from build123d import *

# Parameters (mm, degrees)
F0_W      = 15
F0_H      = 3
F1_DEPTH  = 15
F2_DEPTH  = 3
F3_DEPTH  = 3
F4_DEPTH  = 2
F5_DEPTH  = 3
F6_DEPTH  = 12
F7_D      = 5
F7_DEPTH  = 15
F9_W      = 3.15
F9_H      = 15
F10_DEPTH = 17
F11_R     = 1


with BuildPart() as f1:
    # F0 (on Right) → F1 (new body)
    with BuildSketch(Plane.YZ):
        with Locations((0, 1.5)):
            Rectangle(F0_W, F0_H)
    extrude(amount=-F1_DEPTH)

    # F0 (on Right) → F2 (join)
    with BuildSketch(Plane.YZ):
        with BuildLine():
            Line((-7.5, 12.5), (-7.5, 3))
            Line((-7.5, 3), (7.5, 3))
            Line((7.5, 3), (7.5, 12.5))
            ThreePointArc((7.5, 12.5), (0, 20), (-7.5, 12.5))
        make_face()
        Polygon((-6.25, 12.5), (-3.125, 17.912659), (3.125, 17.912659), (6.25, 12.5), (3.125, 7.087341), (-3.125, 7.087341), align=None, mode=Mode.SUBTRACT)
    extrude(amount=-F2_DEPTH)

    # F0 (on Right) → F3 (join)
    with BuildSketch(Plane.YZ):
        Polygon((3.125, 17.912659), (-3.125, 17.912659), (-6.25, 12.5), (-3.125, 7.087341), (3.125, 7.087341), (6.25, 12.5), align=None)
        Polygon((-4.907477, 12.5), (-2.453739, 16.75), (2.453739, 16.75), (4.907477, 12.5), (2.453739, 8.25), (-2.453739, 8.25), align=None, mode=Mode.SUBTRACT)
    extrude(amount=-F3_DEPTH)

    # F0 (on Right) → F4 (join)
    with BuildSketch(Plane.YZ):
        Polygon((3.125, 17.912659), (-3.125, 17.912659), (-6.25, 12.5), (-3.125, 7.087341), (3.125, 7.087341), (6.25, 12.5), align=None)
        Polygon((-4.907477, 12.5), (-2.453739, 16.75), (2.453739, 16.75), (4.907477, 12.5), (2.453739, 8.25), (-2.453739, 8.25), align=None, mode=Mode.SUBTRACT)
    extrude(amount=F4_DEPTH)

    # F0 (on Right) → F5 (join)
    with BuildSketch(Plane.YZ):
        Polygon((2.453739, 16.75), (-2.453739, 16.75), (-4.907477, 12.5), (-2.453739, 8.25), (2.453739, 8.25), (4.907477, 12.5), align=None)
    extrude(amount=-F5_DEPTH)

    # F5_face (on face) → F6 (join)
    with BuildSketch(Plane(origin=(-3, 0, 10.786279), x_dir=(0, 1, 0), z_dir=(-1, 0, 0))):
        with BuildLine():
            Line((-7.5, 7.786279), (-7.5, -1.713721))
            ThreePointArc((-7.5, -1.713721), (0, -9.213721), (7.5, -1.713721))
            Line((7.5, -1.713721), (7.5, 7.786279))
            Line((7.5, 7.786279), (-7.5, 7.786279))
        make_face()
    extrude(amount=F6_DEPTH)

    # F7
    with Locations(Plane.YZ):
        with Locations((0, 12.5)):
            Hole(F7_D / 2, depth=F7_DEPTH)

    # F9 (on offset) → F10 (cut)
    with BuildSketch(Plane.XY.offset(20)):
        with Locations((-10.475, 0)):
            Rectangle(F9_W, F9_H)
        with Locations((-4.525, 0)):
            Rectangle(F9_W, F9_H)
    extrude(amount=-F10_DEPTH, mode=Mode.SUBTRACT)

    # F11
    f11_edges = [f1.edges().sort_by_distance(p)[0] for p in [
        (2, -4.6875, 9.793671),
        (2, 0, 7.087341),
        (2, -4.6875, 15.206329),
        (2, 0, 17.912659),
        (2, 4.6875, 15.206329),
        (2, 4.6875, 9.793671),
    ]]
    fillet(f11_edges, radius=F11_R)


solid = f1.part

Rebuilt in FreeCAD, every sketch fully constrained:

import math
import FreeCAD as App
import Part
import Sketcher
from FreeCAD import Vector
Q = App.Units.Quantity


def edges_at(feature, points):
    """Names of the edges that pass closest to the given points."""
    edges = feature.Shape.Edges
    near = lambda p: min(range(len(edges)), key=lambda i: edges[i].distToShape(Part.Vertex(*p))[0])
    return sorted({f"Edge{near(p) + 1}" for p in points})

doc = App.newDocument("Part")
body = doc.addObject("PartDesign::Body", "Body")

# Sketch on YZ plane
sketch1 = doc.addObject("Sketcher::SketchObject", "Sketch")
body.addObject(sketch1)
sketch1.AttachmentSupport = (doc.YZ_Plane, [""])
sketch1.MapMode = "FlatFace"
sketch1.addGeometry([
    Part.LineSegment(Vector(-7.5, 3, 0), Vector(-7.5, 0, 0)),
    Part.LineSegment(Vector(-7.5, 0, 0), Vector(7.5, 0, 0)),
    Part.LineSegment(Vector(7.5, 0, 0), Vector(7.5, 3, 0)),
    Part.LineSegment(Vector(7.5, 3, 0), Vector(-7.5, 3, 0)),
], False)
sketch1.addConstraint([
    Sketcher.Constraint("Coincident", 0, 2, 1, 1),
    Sketcher.Constraint("Coincident", 1, 2, 2, 1),
    Sketcher.Constraint("Coincident", 2, 2, 3, 1),
    Sketcher.Constraint("Coincident", 3, 2, 0, 1),
    Sketcher.Constraint("Vertical", 0),
    Sketcher.Constraint("Horizontal", 1),
    Sketcher.Constraint("Vertical", 2),
    Sketcher.Constraint("Horizontal", 3),
    Sketcher.Constraint("Symmetric", 0, 2, 1, 2, -1, 1),
    Sketcher.Constraint("DistanceX", 1, 1, 1, 2, Q("15 mm")),
    Sketcher.Constraint("DistanceY", 0, 2, 0, 1, Q("3 mm")),
])
pad1 = doc.addObject("PartDesign::Pad", "Pad")
body.addObject(pad1)
pad1.Profile = sketch1
pad1.Length = 15
pad1.Reversed = True

# Sketch on YZ plane
sketch2 = doc.addObject("Sketcher::SketchObject", "Sketch001")
body.addObject(sketch2)
sketch2.AttachmentSupport = (doc.YZ_Plane, [""])
sketch2.MapMode = "FlatFace"
sketch2.addGeometry([
    Part.LineSegment(Vector(-8, 12, 0), Vector(-8, 3, 0)),  # 0
    Part.LineSegment(Vector(-8, 3, 0), Vector(8, 3, 0)),  # 1
    Part.LineSegment(Vector(8, 3, 0), Vector(8, 12, 0)),  # 2
    Part.ArcOfCircle(Part.Circle(Vector(0, 12, 0), Vector(0, 0, 1), 8), math.radians(0), math.radians(180)),  # 3
    Part.LineSegment(Vector(-3, 7, 0), Vector(-6, 12, 0)),  # 4
    Part.LineSegment(Vector(-6, 12, 0), Vector(-3, 18, 0)),  # 5
    Part.LineSegment(Vector(-3, 18, 0), Vector(3, 18, 0)),  # 6
    Part.LineSegment(Vector(3, 18, 0), Vector(6, 12, 0)),  # 7
    Part.LineSegment(Vector(6, 12, 0), Vector(3, 7, 0)),  # 8
    Part.LineSegment(Vector(3, 7, 0), Vector(-3, 7, 0)),  # 9
], False)
sketch2.addConstraint([
    Sketcher.Constraint("Coincident", 0, 2, 1, 1),
    Sketcher.Constraint("Coincident", 1, 2, 2, 1),
    Sketcher.Constraint("Tangent", 2, 2, 3, 1),
    Sketcher.Constraint("Tangent", 3, 2, 0, 1),
    Sketcher.Constraint("Coincident", 4, 2, 5, 1),
    Sketcher.Constraint("Coincident", 5, 2, 6, 1),
    Sketcher.Constraint("Coincident", 6, 2, 7, 1),
    Sketcher.Constraint("Coincident", 7, 2, 8, 1),
    Sketcher.Constraint("Coincident", 8, 2, 9, 1),
    Sketcher.Constraint("Coincident", 9, 2, 4, 1),
    Sketcher.Constraint("Vertical", 0),
    Sketcher.Constraint("Horizontal", 1),
    Sketcher.Constraint("Vertical", 2),
    Sketcher.Constraint("Horizontal", 6),
    Sketcher.Constraint("Horizontal", 9),
    Sketcher.Constraint("Symmetric", 4, 2, 7, 2, -2),
    Sketcher.Constraint("PointOnObject", 3, 3, -2),
    Sketcher.Constraint("Parallel", 4, 7),
    Sketcher.Constraint("Parallel", 5, 8),
    Sketcher.Constraint("Horizontal", 3, 2, 4, 2),
    Sketcher.Constraint("Vertical", 6, 2, 8, 2),
    Sketcher.Constraint("Vertical", 5, 2, 9, 2),
    Sketcher.Constraint("Radius", 3, Q("7.5 mm")),
    Sketcher.Constraint("Angle", 4, Q("119.999999 deg")),
    Sketcher.Constraint("DistanceY", 0, 2, 0, 1, Q("9.5 mm")),
    Sketcher.Constraint("DistanceY", -1, 1, 0, 2, Q("3 mm")),
    Sketcher.Constraint("DistanceX", 6, 1, 6, 2, Q("6.25 mm")),
    Sketcher.Constraint("Distance", 4, Q("6.25 mm")),
])
pad2 = doc.addObject("PartDesign::Pad", "Pad001")
body.addObject(pad2)
pad2.Profile = sketch2
pad2.Length = 3
pad2.Reversed = True

# Sketch on YZ plane
sketch3 = doc.addObject("Sketcher::SketchObject", "Sketch002")
body.addObject(sketch3)
sketch3.AttachmentSupport = (doc.YZ_Plane, [""])
sketch3.MapMode = "FlatFace"
sketch3.addGeometry([
    Part.LineSegment(Vector(3.1, 17.9, 0), Vector(-3.1, 17.9, 0)),  # 0
    Part.LineSegment(Vector(-3.1, 17.9, 0), Vector(-6.2, 12.5, 0)),  # 1
    Part.LineSegment(Vector(-6.2, 12.5, 0), Vector(-3.1, 7.1, 0)),  # 2
    Part.LineSegment(Vector(-3.1, 7.1, 0), Vector(3.1, 7.1, 0)),  # 3
    Part.LineSegment(Vector(3.1, 7.1, 0), Vector(6.2, 12.5, 0)),  # 4
    Part.LineSegment(Vector(6.2, 12.5, 0), Vector(3.1, 17.9, 0)),  # 5
    Part.LineSegment(Vector(-2.5, 8.2, 0), Vector(-4.9, 12.5, 0)),  # 6
    Part.LineSegment(Vector(-4.9, 12.5, 0), Vector(-2.5, 16.8, 0)),  # 7
    Part.LineSegment(Vector(-2.5, 16.8, 0), Vector(2.5, 16.8, 0)),  # 8
    Part.LineSegment(Vector(2.5, 16.8, 0), Vector(4.9, 12.5, 0)),  # 9
    Part.LineSegment(Vector(4.9, 12.5, 0), Vector(2.5, 8.2, 0)),  # 10
    Part.LineSegment(Vector(2.5, 8.2, 0), Vector(-2.5, 8.2, 0)),  # 11
], False)
sketch3.addConstraint([
    Sketcher.Constraint("Coincident", 0, 2, 1, 1),
    Sketcher.Constraint("Coincident", 1, 2, 2, 1),
    Sketcher.Constraint("Coincident", 2, 2, 3, 1),
    Sketcher.Constraint("Coincident", 3, 2, 4, 1),
    Sketcher.Constraint("Coincident", 4, 2, 5, 1),
    Sketcher.Constraint("Coincident", 5, 2, 0, 1),
    Sketcher.Constraint("Coincident", 6, 2, 7, 1),
    Sketcher.Constraint("Coincident", 7, 2, 8, 1),
    Sketcher.Constraint("Coincident", 8, 2, 9, 1),
    Sketcher.Constraint("Coincident", 9, 2, 10, 1),
    Sketcher.Constraint("Coincident", 10, 2, 11, 1),
    Sketcher.Constraint("Coincident", 11, 2, 6, 1),
    Sketcher.Constraint("Horizontal", 0),
    Sketcher.Constraint("Horizontal", 3),
    Sketcher.Constraint("Horizontal", 8),
    Sketcher.Constraint("Horizontal", 11),
    Sketcher.Constraint("Symmetric", 1, 2, 4, 2, -2),
    Sketcher.Constraint("Symmetric", 6, 2, 9, 2, -2),
    Sketcher.Constraint("Parallel", 1, 4),
    Sketcher.Constraint("Parallel", 2, 5),
    Sketcher.Constraint("Parallel", 5, 6),
    Sketcher.Constraint("Parallel", 4, 7),
    Sketcher.Constraint("Parallel", 6, 9),
    Sketcher.Constraint("Parallel", 7, 10),
    Sketcher.Constraint("Horizontal", 4, 2, 6, 2),
    Sketcher.Constraint("Vertical", 0, 2, 2, 2),
    Sketcher.Constraint("Vertical", 3, 2, 5, 2),
    Sketcher.Constraint("Vertical", 8, 2, 10, 2),
    Sketcher.Constraint("Angle", 1, Q("-119.999999 deg")),
    Sketcher.Constraint("DistanceX", 0, 2, 0, 1, Q("6.25 mm")),
    Sketcher.Constraint("DistanceY", -1, 1, 1, 2, Q("12.5 mm")),
    Sketcher.Constraint("DistanceX", 1, 2, 4, 2, Q("12.5 mm")),
    Sketcher.Constraint("DistanceY", 10, 2, 8, 2, Q("8.5 mm")),
    Sketcher.Constraint("DistanceX", 8, 1, 8, 2, Q("4.907478 mm")),
])
pad3 = doc.addObject("PartDesign::Pad", "Pad002")
body.addObject(pad3)
pad3.Profile = sketch3
pad3.Length = 3
pad3.Reversed = True

# Sketch on YZ plane
sketch4 = doc.addObject("Sketcher::SketchObject", "Sketch003")
body.addObject(sketch4)
sketch4.AttachmentSupport = (doc.YZ_Plane, [""])
sketch4.MapMode = "FlatFace"
sketch4.addGeometry([
    Part.LineSegment(Vector(3.1, 17.9, 0), Vector(-3.1, 17.9, 0)),  # 0
    Part.LineSegment(Vector(-3.1, 17.9, 0), Vector(-6.2, 12.5, 0)),  # 1
    Part.LineSegment(Vector(-6.2, 12.5, 0), Vector(-3.1, 7.1, 0)),  # 2
    Part.LineSegment(Vector(-3.1, 7.1, 0), Vector(3.1, 7.1, 0)),  # 3
    Part.LineSegment(Vector(3.1, 7.1, 0), Vector(6.2, 12.5, 0)),  # 4
    Part.LineSegment(Vector(6.2, 12.5, 0), Vector(3.1, 17.9, 0)),  # 5
    Part.LineSegment(Vector(-2.5, 8.2, 0), Vector(-4.9, 12.5, 0)),  # 6
    Part.LineSegment(Vector(-4.9, 12.5, 0), Vector(-2.5, 16.8, 0)),  # 7
    Part.LineSegment(Vector(-2.5, 16.8, 0), Vector(2.5, 16.8, 0)),  # 8
    Part.LineSegment(Vector(2.5, 16.8, 0), Vector(4.9, 12.5, 0)),  # 9
    Part.LineSegment(Vector(4.9, 12.5, 0), Vector(2.5, 8.2, 0)),  # 10
    Part.LineSegment(Vector(2.5, 8.2, 0), Vector(-2.5, 8.2, 0)),  # 11
], False)
sketch4.addConstraint([
    Sketcher.Constraint("Coincident", 0, 2, 1, 1),
    Sketcher.Constraint("Coincident", 1, 2, 2, 1),
    Sketcher.Constraint("Coincident", 2, 2, 3, 1),
    Sketcher.Constraint("Coincident", 3, 2, 4, 1),
    Sketcher.Constraint("Coincident", 4, 2, 5, 1),
    Sketcher.Constraint("Coincident", 5, 2, 0, 1),
    Sketcher.Constraint("Coincident", 6, 2, 7, 1),
    Sketcher.Constraint("Coincident", 7, 2, 8, 1),
    Sketcher.Constraint("Coincident", 8, 2, 9, 1),
    Sketcher.Constraint("Coincident", 9, 2, 10, 1),
    Sketcher.Constraint("Coincident", 10, 2, 11, 1),
    Sketcher.Constraint("Coincident", 11, 2, 6, 1),
    Sketcher.Constraint("Horizontal", 0),
    Sketcher.Constraint("Horizontal", 3),
    Sketcher.Constraint("Horizontal", 8),
    Sketcher.Constraint("Horizontal", 11),
    Sketcher.Constraint("Symmetric", 1, 2, 4, 2, -2),
    Sketcher.Constraint("Symmetric", 6, 2, 9, 2, -2),
    Sketcher.Constraint("Parallel", 1, 4),
    Sketcher.Constraint("Parallel", 2, 5),
    Sketcher.Constraint("Parallel", 5, 6),
    Sketcher.Constraint("Parallel", 4, 7),
    Sketcher.Constraint("Parallel", 6, 9),
    Sketcher.Constraint("Parallel", 7, 10),
    Sketcher.Constraint("Horizontal", 4, 2, 6, 2),
    Sketcher.Constraint("Vertical", 0, 2, 2, 2),
    Sketcher.Constraint("Vertical", 3, 2, 5, 2),
    Sketcher.Constraint("Vertical", 8, 2, 10, 2),
    Sketcher.Constraint("Angle", 1, Q("-119.999999 deg")),
    Sketcher.Constraint("DistanceX", 0, 2, 0, 1, Q("6.25 mm")),
    Sketcher.Constraint("DistanceY", -1, 1, 1, 2, Q("12.5 mm")),
    Sketcher.Constraint("DistanceX", 1, 2, 4, 2, Q("12.5 mm")),
    Sketcher.Constraint("DistanceY", 10, 2, 8, 2, Q("8.5 mm")),
    Sketcher.Constraint("DistanceX", 8, 1, 8, 2, Q("4.907478 mm")),
])
pad4 = doc.addObject("PartDesign::Pad", "Pad003")
body.addObject(pad4)
pad4.Profile = sketch4
pad4.Length = 2

# Sketch on YZ plane
sketch5 = doc.addObject("Sketcher::SketchObject", "Sketch004")
body.addObject(sketch5)
sketch5.AttachmentSupport = (doc.YZ_Plane, [""])
sketch5.MapMode = "FlatFace"
sketch5.addGeometry([
    Part.LineSegment(Vector(2.5, 16.8, 0), Vector(-2.5, 16.8, 0)),  # 0
    Part.LineSegment(Vector(-2.5, 16.8, 0), Vector(-4.9, 12.5, 0)),  # 1
    Part.LineSegment(Vector(-4.9, 12.5, 0), Vector(-2.5, 8.2, 0)),  # 2
    Part.LineSegment(Vector(-2.5, 8.2, 0), Vector(2.5, 8.2, 0)),  # 3
    Part.LineSegment(Vector(2.5, 8.2, 0), Vector(4.9, 12.5, 0)),  # 4
    Part.LineSegment(Vector(4.9, 12.5, 0), Vector(2.5, 16.8, 0)),  # 5
], False)
sketch5.addConstraint([
    Sketcher.Constraint("Coincident", 0, 2, 1, 1),
    Sketcher.Constraint("Coincident", 1, 2, 2, 1),
    Sketcher.Constraint("Coincident", 2, 2, 3, 1),
    Sketcher.Constraint("Coincident", 3, 2, 4, 1),
    Sketcher.Constraint("Coincident", 4, 2, 5, 1),
    Sketcher.Constraint("Coincident", 5, 2, 0, 1),
    Sketcher.Constraint("Horizontal", 0),
    Sketcher.Constraint("Horizontal", 3),
    Sketcher.Constraint("Symmetric", 1, 2, 4, 2, -2),
    Sketcher.Constraint("Parallel", 1, 4),
    Sketcher.Constraint("Parallel", 2, 5),
    Sketcher.Constraint("Vertical", 0, 2, 2, 2),
    Sketcher.Constraint("Vertical", 3, 2, 5, 2),
    Sketcher.Constraint("Angle", 1, Q("-119.999993 deg")),
    Sketcher.Constraint("DistanceY", -1, 1, 1, 2, Q("12.5 mm")),
    Sketcher.Constraint("DistanceY", 2, 2, 0, 2, Q("8.5 mm")),
    Sketcher.Constraint("DistanceX", 0, 2, 0, 1, Q("4.907478 mm")),
])
pad5 = doc.addObject("PartDesign::Pad", "Pad004")
body.addObject(pad5)
pad5.Profile = sketch5
pad5.Length = 3
pad5.Reversed = True

# Sketch on YZ plane
sketch6 = doc.addObject("Sketcher::SketchObject", "Sketch005")
body.addObject(sketch6)
sketch6.AttachmentSupport = (doc.YZ_Plane, [""])
sketch6.MapMode = "FlatFace"
sketch6.AttachmentOffset = App.Placement(Vector(0, 0, -3), App.Rotation())
sketch6.addGeometry([
    Part.LineSegment(Vector(-8, 3, 0), Vector(-8, 12, 0)),
    Part.ArcOfCircle(Part.Circle(Vector(0, 12, 0), Vector(0, 0, 1), 8), math.radians(0), math.radians(180)),
    Part.LineSegment(Vector(8, 12, 0), Vector(8, 3, 0)),
    Part.LineSegment(Vector(8, 3, 0), Vector(-8, 3, 0)),
], False)
sketch6.addConstraint([
    Sketcher.Constraint("Tangent", 0, 2, 1, 2),
    Sketcher.Constraint("Tangent", 1, 1, 2, 1),
    Sketcher.Constraint("Coincident", 2, 2, 3, 1),
    Sketcher.Constraint("Coincident", 3, 2, 0, 1),
    Sketcher.Constraint("Vertical", 0),
    Sketcher.Constraint("Vertical", 2),
    Sketcher.Constraint("Horizontal", 3),
    Sketcher.Constraint("PointOnObject", 1, 3, -2),
    Sketcher.Constraint("Radius", 1, Q("7.5 mm")),
    Sketcher.Constraint("DistanceY", 0, 1, 0, 2, Q("9.5 mm")),
    Sketcher.Constraint("DistanceY", -1, 1, 2, 2, Q("3 mm")),
])
pad6 = doc.addObject("PartDesign::Pad", "Pad005")
body.addObject(pad6)
pad6.Profile = sketch6
pad6.Length = 12
pad6.Reversed = True

# Sketch on YZ plane
sketch7 = doc.addObject("Sketcher::SketchObject", "Sketch006")
body.addObject(sketch7)
sketch7.AttachmentSupport = (doc.YZ_Plane, [""])
sketch7.MapMode = "FlatFace"
sketch7.addGeometry(Part.Circle(Vector(0, 12.5, 0), Vector(0, 0, 1), 2.5), False)
sketch7.addConstraint([
    Sketcher.Constraint("PointOnObject", 0, 3, -2),
    Sketcher.Constraint("Diameter", 0, Q("5 mm")),
    Sketcher.Constraint("DistanceY", -1, 1, 0, 3, Q("12.5 mm")),
])
doc.recompute()
hole = doc.addObject("PartDesign::Hole", "Hole")
body.addObject(hole)
hole.Profile = sketch7
hole.ThreadType = "None"
hole.Diameter = 5
hole.DepthType = "Dimension"
hole.Depth = 15
hole.DrillPoint = "Flat"

# Sketch on XY plane
sketch8 = doc.addObject("Sketcher::SketchObject", "Sketch007")
body.addObject(sketch8)
sketch8.AttachmentSupport = (doc.XY_Plane, [""])
sketch8.MapMode = "FlatFace"
sketch8.AttachmentOffset = App.Placement(Vector(0, 0, 20), App.Rotation())
sketch8.addGeometry([
    Part.LineSegment(Vector(-12.1, 7.5, 0), Vector(-12.1, -7.5, 0)),  # 0
    Part.LineSegment(Vector(-12.1, -7.5, 0), Vector(-8.9, -7.5, 0)),  # 1
    Part.LineSegment(Vector(-8.9, -7.5, 0), Vector(-8.9, 7.5, 0)),  # 2
    Part.LineSegment(Vector(-8.9, 7.5, 0), Vector(-12.1, 7.5, 0)),  # 3
    Part.LineSegment(Vector(-6.1, 7.5, 0), Vector(-6.1, -7.5, 0)),  # 4
    Part.LineSegment(Vector(-6.1, -7.5, 0), Vector(-3, -7.5, 0)),  # 5
    Part.LineSegment(Vector(-3, -7.5, 0), Vector(-3, 7.5, 0)),  # 6
    Part.LineSegment(Vector(-3, 7.5, 0), Vector(-6.1, 7.5, 0)),  # 7
], False)
sketch8.addConstraint([
    Sketcher.Constraint("Coincident", 0, 2, 1, 1),
    Sketcher.Constraint("Coincident", 1, 2, 2, 1),
    Sketcher.Constraint("Coincident", 2, 2, 3, 1),
    Sketcher.Constraint("Coincident", 3, 2, 0, 1),
    Sketcher.Constraint("Coincident", 4, 2, 5, 1),
    Sketcher.Constraint("Coincident", 5, 2, 6, 1),
    Sketcher.Constraint("Coincident", 6, 2, 7, 1),
    Sketcher.Constraint("Coincident", 7, 2, 4, 1),
    Sketcher.Constraint("Vertical", 0),
    Sketcher.Constraint("Horizontal", 1),
    Sketcher.Constraint("Vertical", 2),
    Sketcher.Constraint("Horizontal", 3),
    Sketcher.Constraint("Vertical", 4),
    Sketcher.Constraint("Horizontal", 5),
    Sketcher.Constraint("Vertical", 6),
    Sketcher.Constraint("Horizontal", 7),
    Sketcher.Constraint("Horizontal", 1, 2, 4, 2),
    Sketcher.Constraint("Horizontal", 3, 2, 6, 2),
    Sketcher.Constraint("Equal", 3, 5),
    Sketcher.Constraint("DistanceY", 0, 2, 0, 1, Q("15 mm")),
    Sketcher.Constraint("DistanceX", 1, 1, 1, 2, Q("3.15 mm")),
    Sketcher.Constraint("DistanceY", 0, 2, -1, 1, Q("7.5 mm")),
    Sketcher.Constraint("DistanceX", 1, 2, -1, 1, Q("8.9 mm")),
    Sketcher.Constraint("DistanceX", 4, 2, -1, 1, Q("6.1 mm")),
])
pocket1 = doc.addObject("PartDesign::Pocket", "Pocket")
body.addObject(pocket1)
pocket1.Profile = sketch8
pocket1.Length = 17
doc.recompute()

fillet = doc.addObject("PartDesign::Fillet", "Fillet")
body.addObject(fillet)
fillet.Base = (pocket1, edges_at(pocket1, [
    (2, -4.688, 9.794),
    (2, 0, 7.087),
    (2, -4.688, 15.206),
    (2, 0, 17.913),
    (2, 4.688, 15.206),
    (2, 4.688, 9.794),
]))
fillet.Radius = 1

doc.recompute()
